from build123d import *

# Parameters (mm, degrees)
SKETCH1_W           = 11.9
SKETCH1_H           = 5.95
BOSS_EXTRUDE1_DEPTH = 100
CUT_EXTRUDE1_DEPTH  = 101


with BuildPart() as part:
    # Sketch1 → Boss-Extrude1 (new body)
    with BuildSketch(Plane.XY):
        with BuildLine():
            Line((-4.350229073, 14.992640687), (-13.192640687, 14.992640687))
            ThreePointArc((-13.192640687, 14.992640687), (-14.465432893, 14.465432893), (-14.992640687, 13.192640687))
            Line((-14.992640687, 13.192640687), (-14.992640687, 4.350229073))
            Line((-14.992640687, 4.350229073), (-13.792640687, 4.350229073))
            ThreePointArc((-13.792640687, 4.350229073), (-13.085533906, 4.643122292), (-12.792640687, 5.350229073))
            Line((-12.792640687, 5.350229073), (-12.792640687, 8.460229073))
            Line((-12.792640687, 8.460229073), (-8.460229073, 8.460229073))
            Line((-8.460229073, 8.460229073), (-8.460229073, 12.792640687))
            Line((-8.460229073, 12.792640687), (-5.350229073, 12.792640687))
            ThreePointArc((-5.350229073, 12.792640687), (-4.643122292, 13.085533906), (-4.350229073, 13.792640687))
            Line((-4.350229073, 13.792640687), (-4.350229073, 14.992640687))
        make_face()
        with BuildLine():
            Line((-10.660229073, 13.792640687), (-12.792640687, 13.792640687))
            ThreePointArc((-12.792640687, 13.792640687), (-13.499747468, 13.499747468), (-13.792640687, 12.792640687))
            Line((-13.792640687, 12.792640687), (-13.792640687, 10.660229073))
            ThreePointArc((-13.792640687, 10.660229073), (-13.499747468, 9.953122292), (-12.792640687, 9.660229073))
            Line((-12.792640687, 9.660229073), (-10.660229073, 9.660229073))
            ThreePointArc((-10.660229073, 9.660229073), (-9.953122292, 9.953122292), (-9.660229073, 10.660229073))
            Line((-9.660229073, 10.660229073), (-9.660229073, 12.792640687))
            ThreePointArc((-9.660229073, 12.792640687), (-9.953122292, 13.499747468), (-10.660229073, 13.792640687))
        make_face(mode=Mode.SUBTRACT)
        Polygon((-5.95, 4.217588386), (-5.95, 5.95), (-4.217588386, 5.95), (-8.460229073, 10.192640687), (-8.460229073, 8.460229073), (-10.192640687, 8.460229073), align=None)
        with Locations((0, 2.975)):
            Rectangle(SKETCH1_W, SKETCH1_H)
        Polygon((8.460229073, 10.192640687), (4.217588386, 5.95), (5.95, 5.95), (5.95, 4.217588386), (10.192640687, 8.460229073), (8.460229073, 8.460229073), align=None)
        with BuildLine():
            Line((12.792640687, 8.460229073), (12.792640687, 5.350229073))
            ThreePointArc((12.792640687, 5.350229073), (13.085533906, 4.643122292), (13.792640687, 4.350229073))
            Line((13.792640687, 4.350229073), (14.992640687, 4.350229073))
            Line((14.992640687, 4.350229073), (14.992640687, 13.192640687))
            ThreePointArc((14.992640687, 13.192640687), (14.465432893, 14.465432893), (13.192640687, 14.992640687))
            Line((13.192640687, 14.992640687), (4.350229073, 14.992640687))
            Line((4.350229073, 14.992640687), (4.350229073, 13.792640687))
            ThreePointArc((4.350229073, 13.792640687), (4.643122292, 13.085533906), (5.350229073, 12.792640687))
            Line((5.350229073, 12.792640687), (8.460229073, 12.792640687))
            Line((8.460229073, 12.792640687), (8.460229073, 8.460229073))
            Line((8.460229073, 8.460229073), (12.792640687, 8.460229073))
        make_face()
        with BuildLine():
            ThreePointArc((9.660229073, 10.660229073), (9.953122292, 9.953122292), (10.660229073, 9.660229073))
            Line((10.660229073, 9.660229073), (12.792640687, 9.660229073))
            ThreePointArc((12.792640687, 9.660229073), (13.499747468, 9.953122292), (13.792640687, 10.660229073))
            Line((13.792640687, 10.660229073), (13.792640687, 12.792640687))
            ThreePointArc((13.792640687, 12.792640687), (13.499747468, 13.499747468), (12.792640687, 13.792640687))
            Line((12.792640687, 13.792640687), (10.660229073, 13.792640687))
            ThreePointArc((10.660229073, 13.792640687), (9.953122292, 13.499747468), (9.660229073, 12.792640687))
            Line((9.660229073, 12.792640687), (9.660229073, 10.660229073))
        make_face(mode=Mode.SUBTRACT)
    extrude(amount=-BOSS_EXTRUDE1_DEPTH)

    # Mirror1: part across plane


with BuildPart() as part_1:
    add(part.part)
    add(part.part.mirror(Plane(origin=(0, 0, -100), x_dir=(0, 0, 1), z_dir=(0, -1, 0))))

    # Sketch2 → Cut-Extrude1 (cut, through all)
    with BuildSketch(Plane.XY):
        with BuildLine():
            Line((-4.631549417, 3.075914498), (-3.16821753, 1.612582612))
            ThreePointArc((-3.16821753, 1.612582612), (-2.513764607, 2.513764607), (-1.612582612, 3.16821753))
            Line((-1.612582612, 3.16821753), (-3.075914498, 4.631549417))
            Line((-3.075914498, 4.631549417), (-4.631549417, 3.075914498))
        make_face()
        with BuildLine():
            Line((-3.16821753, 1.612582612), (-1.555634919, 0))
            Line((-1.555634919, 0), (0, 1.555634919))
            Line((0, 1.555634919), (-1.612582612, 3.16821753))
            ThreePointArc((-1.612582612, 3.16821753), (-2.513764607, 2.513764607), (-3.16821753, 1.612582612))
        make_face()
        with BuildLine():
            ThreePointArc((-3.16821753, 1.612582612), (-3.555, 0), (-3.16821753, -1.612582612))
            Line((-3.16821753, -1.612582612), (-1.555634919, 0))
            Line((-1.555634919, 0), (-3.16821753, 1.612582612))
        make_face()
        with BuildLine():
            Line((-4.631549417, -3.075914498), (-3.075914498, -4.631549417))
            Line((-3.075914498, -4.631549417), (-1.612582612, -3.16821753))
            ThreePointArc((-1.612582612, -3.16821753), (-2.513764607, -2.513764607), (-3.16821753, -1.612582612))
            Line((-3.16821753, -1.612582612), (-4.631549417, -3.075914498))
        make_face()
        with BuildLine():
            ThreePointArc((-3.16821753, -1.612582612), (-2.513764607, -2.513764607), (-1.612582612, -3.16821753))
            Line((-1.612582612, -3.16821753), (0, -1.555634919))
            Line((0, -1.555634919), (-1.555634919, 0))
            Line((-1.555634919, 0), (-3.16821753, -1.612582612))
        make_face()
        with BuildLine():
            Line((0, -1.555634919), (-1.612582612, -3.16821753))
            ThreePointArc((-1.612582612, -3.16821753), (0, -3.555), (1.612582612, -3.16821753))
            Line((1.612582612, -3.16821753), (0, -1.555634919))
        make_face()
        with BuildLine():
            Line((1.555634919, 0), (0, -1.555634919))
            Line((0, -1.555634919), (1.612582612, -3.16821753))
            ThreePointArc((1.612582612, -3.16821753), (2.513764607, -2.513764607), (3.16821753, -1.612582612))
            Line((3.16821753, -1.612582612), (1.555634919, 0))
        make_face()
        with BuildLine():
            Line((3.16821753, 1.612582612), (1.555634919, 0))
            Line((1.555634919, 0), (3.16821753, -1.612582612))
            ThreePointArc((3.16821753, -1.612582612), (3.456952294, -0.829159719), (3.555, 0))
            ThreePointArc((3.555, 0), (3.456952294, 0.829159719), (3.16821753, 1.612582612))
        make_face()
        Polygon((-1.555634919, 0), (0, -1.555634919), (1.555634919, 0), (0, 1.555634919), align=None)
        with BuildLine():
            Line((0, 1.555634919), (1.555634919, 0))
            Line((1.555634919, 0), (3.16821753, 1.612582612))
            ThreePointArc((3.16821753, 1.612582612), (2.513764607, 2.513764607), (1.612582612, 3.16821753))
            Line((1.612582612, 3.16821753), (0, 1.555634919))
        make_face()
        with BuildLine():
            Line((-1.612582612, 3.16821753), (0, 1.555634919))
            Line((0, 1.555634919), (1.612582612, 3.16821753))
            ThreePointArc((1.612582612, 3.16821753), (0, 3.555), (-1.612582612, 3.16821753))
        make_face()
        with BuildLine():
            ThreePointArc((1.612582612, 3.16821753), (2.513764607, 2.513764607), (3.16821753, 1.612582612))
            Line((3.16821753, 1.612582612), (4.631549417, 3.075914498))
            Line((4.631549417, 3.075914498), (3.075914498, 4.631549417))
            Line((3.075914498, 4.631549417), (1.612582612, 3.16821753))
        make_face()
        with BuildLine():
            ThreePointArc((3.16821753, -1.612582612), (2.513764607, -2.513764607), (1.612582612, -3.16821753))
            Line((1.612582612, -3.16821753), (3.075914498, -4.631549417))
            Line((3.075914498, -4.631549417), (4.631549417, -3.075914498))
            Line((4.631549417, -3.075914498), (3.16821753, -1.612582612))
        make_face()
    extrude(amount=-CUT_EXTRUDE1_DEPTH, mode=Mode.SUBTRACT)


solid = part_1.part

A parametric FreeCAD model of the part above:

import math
import FreeCAD as App
import Part
import Sketcher
Q = App.Units.Quantity

doc = App.newDocument("Part")
body = doc.addObject("PartDesign::Body", "Body")

# Sketch on XY plane
sketch1 = body.newObject("Sketcher::SketchObject", "Sketch")
sketch1.AttachmentSupport = (doc.getObject("XY_Plane"), [""])
sketch1.MapMode = "FlatFace"
sketch1.addGeometry(Part.LineSegment(App.Vector(-4.4, 15, 0), App.Vector(-13.2, 15, 0)), False)
sketch1.addGeometry(Part.ArcOfCircle(Part.Circle(App.Vector(-13.2, 13.2, 0), App.Vector(0, 0, 1), 1.8), math.radians(90), math.radians(180)), False)
sketch1.addGeometry(Part.LineSegment(App.Vector(-15, 13.2, 0), App.Vector(-15, 4.4, 0)), False)
sketch1.addGeometry(Part.LineSegment(App.Vector(-15, 4.4, 0), App.Vector(-13.8, 4.4, 0)), False)
sketch1.addGeometry(Part.ArcOfCircle(Part.Circle(App.Vector(-13.8, 5.4, 0), App.Vector(0, 0, 1), 1), math.radians(-90), math.radians(0)), False)
sketch1.addGeometry(Part.LineSegment(App.Vector(-12.8, 5.4, 0), App.Vector(-12.8, 8.5, 0)), False)
sketch1.addGeometry(Part.LineSegment(App.Vector(-12.8, 8.5, 0), App.Vector(-10.2, 8.5, 0)), False)
sketch1.addGeometry(Part.LineSegment(App.Vector(-10.2, 8.5, 0), App.Vector(-6, 4.2, 0)), False)
sketch1.addGeometry(Part.LineSegment(App.Vector(-6, 4.2, 0), App.Vector(-6, 0, 0)), False)
sketch1.addGeometry(Part.LineSegment(App.Vector(-6, 0, 0), App.Vector(6, 0, 0)), False)
sketch1.addGeometry(Part.LineSegment(App.Vector(6, 0, 0), App.Vector(6, 4.2, 0)), False)
sketch1.addGeometry(Part.LineSegment(App.Vector(6, 4.2, 0), App.Vector(10.2, 8.5, 0)), False)
sketch1.addGeometry(Part.LineSegment(App.Vector(10.2, 8.5, 0), App.Vector(12.8, 8.5, 0)), False)
sketch1.addGeometry(Part.LineSegment(App.Vector(12.8, 8.5, 0), App.Vector(12.8, 5.4, 0)), False)
sketch1.addGeometry(Part.ArcOfCircle(Part.Circle(App.Vector(13.8, 5.4, 0), App.Vector(0, 0, 1), 1), math.radians(-180), math.radians(-90)), False)
sketch1.addGeometry(Part.LineSegment(App.Vector(13.8, 4.4, 0), App.Vector(15, 4.4, 0)), False)
sketch1.addGeometry(Part.LineSegment(App.Vector(15, 4.4, 0), App.Vector(15, 13.2, 0)), False)
sketch1.addGeometry(Part.ArcOfCircle(Part.Circle(App.Vector(13.2, 13.2, 0), App.Vector(0, 0, 1), 1.8), math.radians(0), math.radians(90)), False)
sketch1.addGeometry(Part.LineSegment(App.Vector(13.2, 15, 0), App.Vector(4.4, 15, 0)), False)
sketch1.addGeometry(Part.LineSegment(App.Vector(4.4, 15, 0), App.Vector(4.4, 13.8, 0)), False)
sketch1.addGeometry(Part.ArcOfCircle(Part.Circle(App.Vector(5.4, 13.8, 0), App.Vector(0, 0, 1), 1), math.radians(-180), math.radians(-90)), False)
sketch1.addGeometry(Part.LineSegment(App.Vector(5.4, 12.8, 0), App.Vector(8.5, 12.8, 0)), False)
sketch1.addGeometry(Part.LineSegment(App.Vector(8.5, 12.8, 0), App.Vector(8.5, 10.2, 0)), False)
sketch1.addGeometry(Part.LineSegment(App.Vector(8.5, 10.2, 0), App.Vector(4.2, 6, 0)), False)
sketch1.addGeometry(Part.LineSegment(App.Vector(4.2, 6, 0), App.Vector(-4.2, 6, 0)), False)
sketch1.addGeometry(Part.LineSegment(App.Vector(-4.2, 6, 0), App.Vector(-8.5, 10.2, 0)), False)
sketch1.addGeometry(Part.LineSegment(App.Vector(-8.5, 10.2, 0), App.Vector(-8.5, 12.8, 0)), False)
sketch1.addGeometry(Part.LineSegment(App.Vector(-8.5, 12.8, 0), App.Vector(-5.4, 12.8, 0)), False)
sketch1.addGeometry(Part.ArcOfCircle(Part.Circle(App.Vector(-5.4, 13.8, 0), App.Vector(0, 0, 1), 1), math.radians(-90), math.radians(0)), False)
sketch1.addGeometry(Part.LineSegment(App.Vector(-4.4, 13.8, 0), App.Vector(-4.4, 15, 0)), False)
sketch1.addGeometry(Part.LineSegment(App.Vector(-12.8, 13.8, 0), App.Vector(-10.7, 13.8, 0)), False)
sketch1.addGeometry(Part.ArcOfCircle(Part.Circle(App.Vector(-10.7, 12.8, 0), App.Vector(0, 0, 1), 1), math.radians(0), math.radians(90)), False)
sketch1.addGeometry(Part.LineSegment(App.Vector(-9.7, 12.8, 0), App.Vector(-9.7, 10.7, 0)), False)
sketch1.addGeometry(Part.ArcOfCircle(Part.Circle(App.Vector(-10.7, 10.7, 0), App.Vector(0, 0, 1), 1), math.radians(-90), math.radians(0)), False)
sketch1.addGeometry(Part.LineSegment(App.Vector(-10.7, 9.7, 0), App.Vector(-12.8, 9.7, 0)), False)
sketch1.addGeometry(Part.ArcOfCircle(Part.Circle(App.Vector(-12.8, 10.7, 0), App.Vector(0, 0, 1), 1), math.radians(-180), math.radians(-90)), False)
sketch1.addGeometry(Part.LineSegment(App.Vector(-13.8, 10.7, 0), App.Vector(-13.8, 12.8, 0)), False)
sketch1.addGeometry(Part.ArcOfCircle(Part.Circle(App.Vector(-12.8, 12.8, 0), App.Vector(0, 0, 1), 1), math.radians(90), math.radians(180)), False)
sketch1.addGeometry(Part.ArcOfCircle(Part.Circle(App.Vector(10.7, 10.7, 0), App.Vector(0, 0, 1), 1), math.radians(-180), math.radians(-90)), False)
sketch1.addGeometry(Part.LineSegment(App.Vector(9.7, 10.7, 0), App.Vector(9.7, 12.8, 0)), False)
sketch1.addGeometry(Part.ArcOfCircle(Part.Circle(App.Vector(10.7, 12.8, 0), App.Vector(0, 0, 1), 1), math.radians(90), math.radians(180)), False)
sketch1.addGeometry(Part.LineSegment(App.Vector(10.7, 13.8, 0), App.Vector(12.8, 13.8, 0)), False)
sketch1.addGeometry(Part.ArcOfCircle(Part.Circle(App.Vector(12.8, 12.8, 0), App.Vector(0, 0, 1), 1), math.radians(0), math.radians(90)), False)
sketch1.addGeometry(Part.LineSegment(App.Vector(13.8, 12.8, 0), App.Vector(13.8, 10.7, 0)), False)
sketch1.addGeometry(Part.ArcOfCircle(Part.Circle(App.Vector(12.8, 10.7, 0), App.Vector(0, 0, 1), 1), math.radians(-90), math.radians(0)), False)
sketch1.addGeometry(Part.LineSegment(App.Vector(12.8, 9.7, 0), App.Vector(10.7, 9.7, 0)), False)
sketch1.addConstraint(Sketcher.Constraint("Tangent", 0, 2, 1, 1))
sketch1.addConstraint(Sketcher.Constraint("Tangent", 1, 2, 2, 1))
sketch1.addConstraint(Sketcher.Constraint("Coincident", 2, 2, 3, 1))
sketch1.addConstraint(Sketcher.Constraint("Tangent", 3, 2, 4, 1))
sketch1.addConstraint(Sketcher.Constraint("Tangent", 4, 2, 5, 1))
sketch1.addConstraint(Sketcher.Constraint("Coincident", 5, 2, 6, 1))
sketch1.addConstraint(Sketcher.Constraint("Coincident", 6, 2, 7, 1))
sketch1.addConstraint(Sketcher.Constraint("Coincident", 7, 2, 8, 1))
sketch1.addConstraint(Sketcher.Constraint("Coincident", 8, 2, 9, 1))
sketch1.addConstraint(Sketcher.Constraint("Coincident", 9, 2, 10, 1))
sketch1.addConstraint(Sketcher.Constraint("Coincident", 10, 2, 11, 1))
sketch1.addConstraint(Sketcher.Constraint("Coincident", 11, 2, 12, 1))
sketch1.addConstraint(Sketcher.Constraint("Coincident", 12, 2, 13, 1))
sketch1.addConstraint(Sketcher.Constraint("Tangent", 13, 2, 14, 1))
sketch1.addConstraint(Sketcher.Constraint("Tangent", 14, 2, 15, 1))
sketch1.addConstraint(Sketcher.Constraint("Coincident", 15, 2, 16, 1))
sketch1.addConstraint(Sketcher.Constraint("Tangent", 16, 2, 17, 1))
sketch1.addConstraint(Sketcher.Constraint("Tangent", 17, 2, 18, 1))
sketch1.addConstraint(Sketcher.Constraint("Coincident", 18, 2, 19, 1))
sketch1.addConstraint(Sketcher.Constraint("Tangent", 19, 2, 20, 1))
sketch1.addConstraint(Sketcher.Constraint("Tangent", 20, 2, 21, 1))
sketch1.addConstraint(Sketcher.Constraint("Coincident", 21, 2, 22, 1))
sketch1.addConstraint(Sketcher.Constraint("Coincident", 22, 2, 23, 1))
sketch1.addConstraint(Sketcher.Constraint("Coincident", 23, 2, 24, 1))
sketch1.addConstraint(Sketcher.Constraint("Coincident", 24, 2, 25, 1))
sketch1.addConstraint(Sketcher.Constraint("Coincident", 25, 2, 26, 1))
sketch1.addConstraint(Sketcher.Constraint("Coincident", 26, 2, 27, 1))
sketch1.addConstraint(Sketcher.Constraint("Tangent", 27, 2, 28, 1))
sketch1.addConstraint(Sketcher.Constraint("Tangent", 28, 2, 29, 1))
sketch1.addConstraint(Sketcher.Constraint("Coincident", 29, 2, 0, 1))
sketch1.addConstraint(Sketcher.Constraint("Tangent", 30, 2, 31, 2))
sketch1.addConstraint(Sketcher.Constraint("Tangent", 31, 1, 32, 1))
sketch1.addConstraint(Sketcher.Constraint("Tangent", 32, 2, 33, 2))
sketch1.addConstraint(Sketcher.Constraint("Tangent", 33, 1, 34, 1))
sketch1.addConstraint(Sketcher.Constraint("Tangent", 34, 2, 35, 2))
sketch1.addConstraint(Sketcher.Constraint("Tangent", 35, 1, 36, 1))
sketch1.addConstraint(Sketcher.Constraint("Tangent", 36, 2, 37, 2))
sketch1.addConstraint(Sketcher.Constraint("Tangent", 37, 1, 30, 1))
sketch1.addConstraint(Sketcher.Constraint("Tangent", 38, 1, 39, 1))
sketch1.addConstraint(Sketcher.Constraint("Tangent", 39, 2, 40, 2))
sketch1.addConstraint(Sketcher.Constraint("Tangent", 40, 1, 41, 1))
sketch1.addConstraint(Sketcher.Constraint("Tangent", 41, 2, 42, 2))
sketch1.addConstraint(Sketcher.Constraint("Tangent", 42, 1, 43, 1))
sketch1.addConstraint(Sketcher.Constraint("Tangent", 43, 2, 44, 2))
sketch1.addConstraint(Sketcher.Constraint("Tangent", 44, 1, 45, 1))
sketch1.addConstraint(Sketcher.Constraint("Tangent", 45, 2, 38, 2))
sketch1.addConstraint(Sketcher.Constraint("Horizontal", 0))
sketch1.addConstraint(Sketcher.Constraint("Vertical", 2))
sketch1.addConstraint(Sketcher.Constraint("Horizontal", 3))
sketch1.addConstraint(Sketcher.Constraint("Vertical", 5))
sketch1.addConstraint(Sketcher.Constraint("Horizontal", 6))
sketch1.addConstraint(Sketcher.Constraint("Vertical", 8))
sketch1.addConstraint(Sketcher.Constraint("Horizontal", 9))
sketch1.addConstraint(Sketcher.Constraint("Vertical", 10))
sketch1.addConstraint(Sketcher.Constraint("Horizontal", 12))
sketch1.addConstraint(Sketcher.Constraint("Vertical", 13))
sketch1.addConstraint(Sketcher.Constraint("Horizontal", 15))
sketch1.addConstraint(Sketcher.Constraint("Vertical", 16))
sketch1.addConstraint(Sketcher.Constraint("Horizontal", 18))
sketch1.addConstraint(Sketcher.Constraint("Vertical", 19))
sketch1.addConstraint(Sketcher.Constraint("Horizontal", 21))
sketch1.addConstraint(Sketcher.Constraint("Vertical", 22))
sketch1.addConstraint(Sketcher.Constraint("Horizontal", 24))
sketch1.addConstraint(Sketcher.Constraint("Vertical", 26))
sketch1.addConstraint(Sketcher.Constraint("Horizontal", 27))
sketch1.addConstraint(Sketcher.Constraint("Vertical", 29))
sketch1.addConstraint(Sketcher.Constraint("Horizontal", 30))
sketch1.addConstraint(Sketcher.Constraint("Vertical", 32))
sketch1.addConstraint(Sketcher.Constraint("Horizontal", 34))
sketch1.addConstraint(Sketcher.Constraint("Vertical", 36))
sketch1.addConstraint(Sketcher.Constraint("Vertical", 39))
sketch1.addConstraint(Sketcher.Constraint("Horizontal", 41))
sketch1.addConstraint(Sketcher.Constraint("Vertical", 43))
sketch1.addConstraint(Sketcher.Constraint("Horizontal", 45))
sketch1.addConstraint(Sketcher.Constraint("Equal", 4, 14))
sketch1.addConstraint(Sketcher.Constraint("Equal", 1, 17))
sketch1.addConstraint(Sketcher.Constraint("Equal", 14, 20))
sketch1.addConstraint(Sketcher.Constraint("Equal", 20, 28))
sketch1.addConstraint(Sketcher.Constraint("Equal", 28, 31))
sketch1.addConstraint(Sketcher.Constraint("Equal", 31, 33))
sketch1.addConstraint(Sketcher.Constraint("Equal", 33, 35))
sketch1.addConstraint(Sketcher.Constraint("Equal", 35, 37))
sketch1.addConstraint(Sketcher.Constraint("Equal", 37, 38))
sketch1.addConstraint(Sketcher.Constraint("Equal", 38, 40))
sketch1.addConstraint(Sketcher.Constraint("Equal", 40, 42))
sketch1.addConstraint(Sketcher.Constraint("Equal", 42, 44))
sketch1.addConstraint(Sketcher.Constraint("Symmetric", 8, 2, 9, 2, -1, 1))
sketch1.addConstraint(Sketcher.Constraint("Symmetric", 4, 3, 14, 3, -2))
sketch1.addConstraint(Sketcher.Constraint("Symmetric", 1, 3, 17, 3, -2))
sketch1.addConstraint(Sketcher.Constraint("Symmetric", 20, 3, 28, 3, -2))
sketch1.addConstraint(Sketcher.Constraint("Symmetric", 33, 3, 38, 3, -2))
sketch1.addConstraint(Sketcher.Constraint("Symmetric", 37, 3, 42, 3, -2))
sketch1.addConstraint(Sketcher.Constraint("Symmetric", 6, 2, 11, 2, -2))
sketch1.addConstraint(Sketcher.Constraint("Symmetric", 22, 2, 25, 2, -2))
sketch1.addConstraint(Sketcher.Constraint("Perpendicular", 7, 11))
sketch1.addConstraint(Sketcher.Constraint("Parallel", 11, 23))
sketch1.addConstraint(Sketcher.Constraint("Perpendicular", 23, 25))
sketch1.addConstraint(Sketcher.Constraint("Horizontal", 7, 2, 10, 2))
sketch1.addConstraint(Sketcher.Constraint("Horizontal", 42, 3, 20, 2))
sketch1.addConstraint(Sketcher.Constraint("Vertical", 37, 3, 4, 2))
sketch1.addConstraint(Sketcher.Constraint("Equal", 18, 2))
sketch1.addConstraint(Sketcher.Constraint("Equal", 27, 5))
sketch1.addConstraint(Sketcher.Constraint("Equal", 15, 19))
sketch1.addConstraint(Sketcher.Constraint("Equal", 12, 22))
sketch1.addConstraint(Sketcher.Constraint("Equal", 45, 32))
sketch1.addConstraint(Sketcher.Constraint("Equal", 11, 23))
sketch1.addConstraint(Sketcher.Constraint("Radius", 4, Q("1 mm")))
sketch1.addConstraint(Sketcher.Constraint("Radius", 1, Q("1.8 mm")))
sketch1.addConstraint(Sketcher.Constraint("Distance", 7, Q("6 mm")))
sketch1.addConstraint(Sketcher.Constraint("DistanceX", 3, 1, 3, 2, Q("1.2 mm")))
sketch1.addConstraint(Sketcher.Constraint("DistanceX", 6, 1, 6, 2, Q("2.6 mm")))
sketch1.addConstraint(Sketcher.Constraint("DistanceX", 9, 1, 9, 2, Q("11.9 mm")))
sketch1.addConstraint(Sketcher.Constraint("DistanceX", 21, 1, 21, 2, Q("3.11 mm")))
sketch1.addConstraint(Sketcher.Constraint("DistanceY", 5, 2, 35, 3, Q("2.2 mm")))
sketch1.addConstraint(Sketcher.Constraint("DistanceY", -1, 1, 23, 2, Q("5.95 mm")))
sketch1.addConstraint(Sketcher.Constraint("DistanceX", 0, 2, 0, 1, Q("8.842412 mm")))
pad1 = body.newObject("PartDesign::Pad", "Pad")
pad1.Profile = sketch1
pad1.Length = 100
pad1.Reversed = True
body2 = doc.addObject("PartDesign::Body", "Body001")
doc.recompute()

body2.BaseFeature = body
doc.recompute()

mirroring = doc.addObject("Part::Mirroring", "Mirroring")
mirroring.Source = body
mirroring.Base = App.Vector(0, 0, -100)
mirroring.Normal = App.Vector(0, -1, 0)
body3 = doc.addObject("PartDesign::Body", "Body002")
body3.BaseFeature = mirroring
boolean = body2.newObject("PartDesign::Boolean", "Boolean")
boolean.Type = "Fuse"
boolean.addObjects([body3])
doc.recompute()

# Sketch on XY plane
sketch2 = body2.newObject("Sketcher::SketchObject", "Sketch001")
sketch2.AttachmentSupport = (doc.getObject("XY_Plane001"), [""])
sketch2.MapMode = "FlatFace"
sketch2.addGeometry(Part.LineSegment(App.Vector(-4.6, 3.1, 0), App.Vector(-3.2, 1.6, 0)), False)
sketch2.addGeometry(Part.ArcOfCircle(Part.Circle(App.Vector(0, 0, 0), App.Vector(0, 0, 1), 3.6), math.radians(153), math.radians(207)), False)
sketch2.addGeometry(Part.LineSegment(App.Vector(-3.2, -1.6, 0), App.Vector(-4.6, -3.1, 0)), False)
sketch2.addGeometry(Part.LineSegment(App.Vector(-4.6, -3.1, 0), App.Vector(-3.1, -4.6, 0)), False)
sketch2.addGeometry(Part.LineSegment(App.Vector(-3.1, -4.6, 0), App.Vector(-1.6, -3.2, 0)), False)
sketch2.addGeometry(Part.ArcOfCircle(Part.Circle(App.Vector(0, 0, 0), App.Vector(0, 0, 1), 3.6), math.radians(-117), math.radians(-63)), False)
sketch2.addGeometry(Part.LineSegment(App.Vector(1.6, -3.2, 0), App.Vector(3.1, -4.6, 0)), False)
sketch2.addGeometry(Part.LineSegment(App.Vector(3.1, -4.6, 0), App.Vector(4.6, -3.1, 0)), False)
sketch2.addGeometry(Part.LineSegment(App.Vector(4.6, -3.1, 0), App.Vector(3.2, -1.6, 0)), False)
sketch2.addGeometry(Part.ArcOfCircle(Part.Circle(App.Vector(0, 0, 0), App.Vector(0, 0, 1), 3.6), math.radians(-27), math.radians(0)), False)
sketch2.addGeometry(Part.ArcOfCircle(Part.Circle(App.Vector(0, 0, 0), App.Vector(0, 0, 1), 3.6), math.radians(0), math.radians(27)), False)
sketch2.addGeometry(Part.LineSegment(App.Vector(3.2, 1.6, 0), App.Vector(4.6, 3.1, 0)), False)
sketch2.addGeometry(Part.LineSegment(App.Vector(4.6, 3.1, 0), App.Vector(3.1, 4.6, 0)), False)
sketch2.addGeometry(Part.LineSegment(App.Vector(3.1, 4.6, 0), App.Vector(1.6, 3.2, 0)), False)
sketch2.addGeometry(Part.ArcOfCircle(Part.Circle(App.Vector(0, 0, 0), App.Vector(0, 0, 1), 3.6), math.radians(63), math.radians(117)), False)
sketch2.addGeometry(Part.LineSegment(App.Vector(-1.6, 3.2, 0), App.Vector(-3.1, 4.6, 0)), False)
sketch2.addGeometry(Part.LineSegment(App.Vector(-3.1, 4.6, 0), App.Vector(-4.6, 3.1, 0)), False)
sketch2.addConstraint(Sketcher.Constraint("Coincident", 0, 2, 1, 1))
sketch2.addConstraint(Sketcher.Constraint("Coincident", 1, 2, 2, 1))
sketch2.addConstraint(Sketcher.Constraint("Coincident", 2, 2, 3, 1))
sketch2.addConstraint(Sketcher.Constraint("Coincident", 3, 2, 4, 1))
sketch2.addConstraint(Sketcher.Constraint("Coincident", 4, 2, 5, 1))
sketch2.addConstraint(Sketcher.Constraint("Coincident", 5, 2, 6, 1))
sketch2.addConstraint(Sketcher.Constraint("Coincident", 6, 2, 7, 1))
sketch2.addConstraint(Sketcher.Constraint("Coincident", 7, 2, 8, 1))
sketch2.addConstraint(Sketcher.Constraint("Coincident", 8, 2, 9, 1))
sketch2.addConstraint(Sketcher.Constraint("Tangent", 9, 2, 10, 1))
sketch2.addConstraint(Sketcher.Constraint("Coincident", 10, 2, 11, 1))
sketch2.addConstraint(Sketcher.Constraint("Coincident", 11, 2, 12, 1))
sketch2.addConstraint(Sketcher.Constraint("Coincident", 12, 2, 13, 1))
sketch2.addConstraint(Sketcher.Constraint("Coincident", 13, 2, 14, 1))
sketch2.addConstraint(Sketcher.Constraint("Coincident", 14, 2, 15, 1))
sketch2.addConstraint(Sketcher.Constraint("Coincident", 15, 2, 16, 1))
sketch2.addConstraint(Sketcher.Constraint("Coincident", 16, 2, 0, 1))
sketch2.addConstraint(Sketcher.Constraint("Coincident", 1, 3, -1, 1))
sketch2.addConstraint(Sketcher.Constraint("Coincident", 5, 3, -1, 1))
sketch2.addConstraint(Sketcher.Constraint("Coincident", 9, 3, -1, 1))
sketch2.addConstraint(Sketcher.Constraint("Coincident", 14, 3, -1, 1))
sketch2.addConstraint(Sketcher.Constraint("Equal", 1, 5))
sketch2.addConstraint(Sketcher.Constraint("Equal", 5, 9))
sketch2.addConstraint(Sketcher.Constraint("Equal", 9, 10))
sketch2.addConstraint(Sketcher.Constraint("Equal", 10, 14))
sketch2.addConstraint(Sketcher.Constraint("Symmetric", 2, 2, 11, 2, -1, 1))
sketch2.addConstraint(Sketcher.Constraint("Symmetric", 3, 2, 12, 2, -1, 1))
sketch2.addConstraint(Sketcher.Constraint("Symmetric", 6, 2, 15, 2, -1, 1))
sketch2.addConstraint(Sketcher.Constraint("Symmetric", 7, 2, 16, 2, -1, 1))
sketch2.addConstraint(Sketcher.Constraint("Symmetric", 3, 2, 6, 2, -2))
sketch2.addConstraint(Sketcher.Constraint("Symmetric", 2, 2, 7, 2, -2))
sketch2.addConstraint(Sketcher.Constraint("PointOnObject", 9, 2, -1))
sketch2.addConstraint(Sketcher.Constraint("Perpendicular", 0, 2))
sketch2.addConstraint(Sketcher.Constraint("Perpendicular", 2, 3))
sketch2.addConstraint(Sketcher.Constraint("Perpendicular", 3, 4))
sketch2.addConstraint(Sketcher.Constraint("Perpendicular", 4, 6))
sketch2.addConstraint(Sketcher.Constraint("Perpendicular", 6, 7))
sketch2.addConstraint(Sketcher.Constraint("Perpendicular", 7, 8))
sketch2.addConstraint(Sketcher.Constraint("Perpendicular", 8, 11))
sketch2.addConstraint(Sketcher.Constraint("Perpendicular", 12, 13))
sketch2.addConstraint(Sketcher.Constraint("Perpendicular", 13, 15))
sketch2.addConstraint(Sketcher.Constraint("Equal", 2, 4))
sketch2.addConstraint(Sketcher.Constraint("Radius", 1, Q("3.555 mm")))
sketch2.addConstraint(Sketcher.Constraint("Distance", 3, Q("2.2 mm")))
sketch2.addConstraint(Sketcher.Constraint("DistanceX", 2, 2, -1, 1, Q("4.631549 mm")))
pocket1 = body2.newObject("PartDesign::Pocket", "Pocket")
pocket1.Profile = sketch2
pocket1.Type = "ThroughAll"
mirroring.Visibility = False

doc.recompute()
